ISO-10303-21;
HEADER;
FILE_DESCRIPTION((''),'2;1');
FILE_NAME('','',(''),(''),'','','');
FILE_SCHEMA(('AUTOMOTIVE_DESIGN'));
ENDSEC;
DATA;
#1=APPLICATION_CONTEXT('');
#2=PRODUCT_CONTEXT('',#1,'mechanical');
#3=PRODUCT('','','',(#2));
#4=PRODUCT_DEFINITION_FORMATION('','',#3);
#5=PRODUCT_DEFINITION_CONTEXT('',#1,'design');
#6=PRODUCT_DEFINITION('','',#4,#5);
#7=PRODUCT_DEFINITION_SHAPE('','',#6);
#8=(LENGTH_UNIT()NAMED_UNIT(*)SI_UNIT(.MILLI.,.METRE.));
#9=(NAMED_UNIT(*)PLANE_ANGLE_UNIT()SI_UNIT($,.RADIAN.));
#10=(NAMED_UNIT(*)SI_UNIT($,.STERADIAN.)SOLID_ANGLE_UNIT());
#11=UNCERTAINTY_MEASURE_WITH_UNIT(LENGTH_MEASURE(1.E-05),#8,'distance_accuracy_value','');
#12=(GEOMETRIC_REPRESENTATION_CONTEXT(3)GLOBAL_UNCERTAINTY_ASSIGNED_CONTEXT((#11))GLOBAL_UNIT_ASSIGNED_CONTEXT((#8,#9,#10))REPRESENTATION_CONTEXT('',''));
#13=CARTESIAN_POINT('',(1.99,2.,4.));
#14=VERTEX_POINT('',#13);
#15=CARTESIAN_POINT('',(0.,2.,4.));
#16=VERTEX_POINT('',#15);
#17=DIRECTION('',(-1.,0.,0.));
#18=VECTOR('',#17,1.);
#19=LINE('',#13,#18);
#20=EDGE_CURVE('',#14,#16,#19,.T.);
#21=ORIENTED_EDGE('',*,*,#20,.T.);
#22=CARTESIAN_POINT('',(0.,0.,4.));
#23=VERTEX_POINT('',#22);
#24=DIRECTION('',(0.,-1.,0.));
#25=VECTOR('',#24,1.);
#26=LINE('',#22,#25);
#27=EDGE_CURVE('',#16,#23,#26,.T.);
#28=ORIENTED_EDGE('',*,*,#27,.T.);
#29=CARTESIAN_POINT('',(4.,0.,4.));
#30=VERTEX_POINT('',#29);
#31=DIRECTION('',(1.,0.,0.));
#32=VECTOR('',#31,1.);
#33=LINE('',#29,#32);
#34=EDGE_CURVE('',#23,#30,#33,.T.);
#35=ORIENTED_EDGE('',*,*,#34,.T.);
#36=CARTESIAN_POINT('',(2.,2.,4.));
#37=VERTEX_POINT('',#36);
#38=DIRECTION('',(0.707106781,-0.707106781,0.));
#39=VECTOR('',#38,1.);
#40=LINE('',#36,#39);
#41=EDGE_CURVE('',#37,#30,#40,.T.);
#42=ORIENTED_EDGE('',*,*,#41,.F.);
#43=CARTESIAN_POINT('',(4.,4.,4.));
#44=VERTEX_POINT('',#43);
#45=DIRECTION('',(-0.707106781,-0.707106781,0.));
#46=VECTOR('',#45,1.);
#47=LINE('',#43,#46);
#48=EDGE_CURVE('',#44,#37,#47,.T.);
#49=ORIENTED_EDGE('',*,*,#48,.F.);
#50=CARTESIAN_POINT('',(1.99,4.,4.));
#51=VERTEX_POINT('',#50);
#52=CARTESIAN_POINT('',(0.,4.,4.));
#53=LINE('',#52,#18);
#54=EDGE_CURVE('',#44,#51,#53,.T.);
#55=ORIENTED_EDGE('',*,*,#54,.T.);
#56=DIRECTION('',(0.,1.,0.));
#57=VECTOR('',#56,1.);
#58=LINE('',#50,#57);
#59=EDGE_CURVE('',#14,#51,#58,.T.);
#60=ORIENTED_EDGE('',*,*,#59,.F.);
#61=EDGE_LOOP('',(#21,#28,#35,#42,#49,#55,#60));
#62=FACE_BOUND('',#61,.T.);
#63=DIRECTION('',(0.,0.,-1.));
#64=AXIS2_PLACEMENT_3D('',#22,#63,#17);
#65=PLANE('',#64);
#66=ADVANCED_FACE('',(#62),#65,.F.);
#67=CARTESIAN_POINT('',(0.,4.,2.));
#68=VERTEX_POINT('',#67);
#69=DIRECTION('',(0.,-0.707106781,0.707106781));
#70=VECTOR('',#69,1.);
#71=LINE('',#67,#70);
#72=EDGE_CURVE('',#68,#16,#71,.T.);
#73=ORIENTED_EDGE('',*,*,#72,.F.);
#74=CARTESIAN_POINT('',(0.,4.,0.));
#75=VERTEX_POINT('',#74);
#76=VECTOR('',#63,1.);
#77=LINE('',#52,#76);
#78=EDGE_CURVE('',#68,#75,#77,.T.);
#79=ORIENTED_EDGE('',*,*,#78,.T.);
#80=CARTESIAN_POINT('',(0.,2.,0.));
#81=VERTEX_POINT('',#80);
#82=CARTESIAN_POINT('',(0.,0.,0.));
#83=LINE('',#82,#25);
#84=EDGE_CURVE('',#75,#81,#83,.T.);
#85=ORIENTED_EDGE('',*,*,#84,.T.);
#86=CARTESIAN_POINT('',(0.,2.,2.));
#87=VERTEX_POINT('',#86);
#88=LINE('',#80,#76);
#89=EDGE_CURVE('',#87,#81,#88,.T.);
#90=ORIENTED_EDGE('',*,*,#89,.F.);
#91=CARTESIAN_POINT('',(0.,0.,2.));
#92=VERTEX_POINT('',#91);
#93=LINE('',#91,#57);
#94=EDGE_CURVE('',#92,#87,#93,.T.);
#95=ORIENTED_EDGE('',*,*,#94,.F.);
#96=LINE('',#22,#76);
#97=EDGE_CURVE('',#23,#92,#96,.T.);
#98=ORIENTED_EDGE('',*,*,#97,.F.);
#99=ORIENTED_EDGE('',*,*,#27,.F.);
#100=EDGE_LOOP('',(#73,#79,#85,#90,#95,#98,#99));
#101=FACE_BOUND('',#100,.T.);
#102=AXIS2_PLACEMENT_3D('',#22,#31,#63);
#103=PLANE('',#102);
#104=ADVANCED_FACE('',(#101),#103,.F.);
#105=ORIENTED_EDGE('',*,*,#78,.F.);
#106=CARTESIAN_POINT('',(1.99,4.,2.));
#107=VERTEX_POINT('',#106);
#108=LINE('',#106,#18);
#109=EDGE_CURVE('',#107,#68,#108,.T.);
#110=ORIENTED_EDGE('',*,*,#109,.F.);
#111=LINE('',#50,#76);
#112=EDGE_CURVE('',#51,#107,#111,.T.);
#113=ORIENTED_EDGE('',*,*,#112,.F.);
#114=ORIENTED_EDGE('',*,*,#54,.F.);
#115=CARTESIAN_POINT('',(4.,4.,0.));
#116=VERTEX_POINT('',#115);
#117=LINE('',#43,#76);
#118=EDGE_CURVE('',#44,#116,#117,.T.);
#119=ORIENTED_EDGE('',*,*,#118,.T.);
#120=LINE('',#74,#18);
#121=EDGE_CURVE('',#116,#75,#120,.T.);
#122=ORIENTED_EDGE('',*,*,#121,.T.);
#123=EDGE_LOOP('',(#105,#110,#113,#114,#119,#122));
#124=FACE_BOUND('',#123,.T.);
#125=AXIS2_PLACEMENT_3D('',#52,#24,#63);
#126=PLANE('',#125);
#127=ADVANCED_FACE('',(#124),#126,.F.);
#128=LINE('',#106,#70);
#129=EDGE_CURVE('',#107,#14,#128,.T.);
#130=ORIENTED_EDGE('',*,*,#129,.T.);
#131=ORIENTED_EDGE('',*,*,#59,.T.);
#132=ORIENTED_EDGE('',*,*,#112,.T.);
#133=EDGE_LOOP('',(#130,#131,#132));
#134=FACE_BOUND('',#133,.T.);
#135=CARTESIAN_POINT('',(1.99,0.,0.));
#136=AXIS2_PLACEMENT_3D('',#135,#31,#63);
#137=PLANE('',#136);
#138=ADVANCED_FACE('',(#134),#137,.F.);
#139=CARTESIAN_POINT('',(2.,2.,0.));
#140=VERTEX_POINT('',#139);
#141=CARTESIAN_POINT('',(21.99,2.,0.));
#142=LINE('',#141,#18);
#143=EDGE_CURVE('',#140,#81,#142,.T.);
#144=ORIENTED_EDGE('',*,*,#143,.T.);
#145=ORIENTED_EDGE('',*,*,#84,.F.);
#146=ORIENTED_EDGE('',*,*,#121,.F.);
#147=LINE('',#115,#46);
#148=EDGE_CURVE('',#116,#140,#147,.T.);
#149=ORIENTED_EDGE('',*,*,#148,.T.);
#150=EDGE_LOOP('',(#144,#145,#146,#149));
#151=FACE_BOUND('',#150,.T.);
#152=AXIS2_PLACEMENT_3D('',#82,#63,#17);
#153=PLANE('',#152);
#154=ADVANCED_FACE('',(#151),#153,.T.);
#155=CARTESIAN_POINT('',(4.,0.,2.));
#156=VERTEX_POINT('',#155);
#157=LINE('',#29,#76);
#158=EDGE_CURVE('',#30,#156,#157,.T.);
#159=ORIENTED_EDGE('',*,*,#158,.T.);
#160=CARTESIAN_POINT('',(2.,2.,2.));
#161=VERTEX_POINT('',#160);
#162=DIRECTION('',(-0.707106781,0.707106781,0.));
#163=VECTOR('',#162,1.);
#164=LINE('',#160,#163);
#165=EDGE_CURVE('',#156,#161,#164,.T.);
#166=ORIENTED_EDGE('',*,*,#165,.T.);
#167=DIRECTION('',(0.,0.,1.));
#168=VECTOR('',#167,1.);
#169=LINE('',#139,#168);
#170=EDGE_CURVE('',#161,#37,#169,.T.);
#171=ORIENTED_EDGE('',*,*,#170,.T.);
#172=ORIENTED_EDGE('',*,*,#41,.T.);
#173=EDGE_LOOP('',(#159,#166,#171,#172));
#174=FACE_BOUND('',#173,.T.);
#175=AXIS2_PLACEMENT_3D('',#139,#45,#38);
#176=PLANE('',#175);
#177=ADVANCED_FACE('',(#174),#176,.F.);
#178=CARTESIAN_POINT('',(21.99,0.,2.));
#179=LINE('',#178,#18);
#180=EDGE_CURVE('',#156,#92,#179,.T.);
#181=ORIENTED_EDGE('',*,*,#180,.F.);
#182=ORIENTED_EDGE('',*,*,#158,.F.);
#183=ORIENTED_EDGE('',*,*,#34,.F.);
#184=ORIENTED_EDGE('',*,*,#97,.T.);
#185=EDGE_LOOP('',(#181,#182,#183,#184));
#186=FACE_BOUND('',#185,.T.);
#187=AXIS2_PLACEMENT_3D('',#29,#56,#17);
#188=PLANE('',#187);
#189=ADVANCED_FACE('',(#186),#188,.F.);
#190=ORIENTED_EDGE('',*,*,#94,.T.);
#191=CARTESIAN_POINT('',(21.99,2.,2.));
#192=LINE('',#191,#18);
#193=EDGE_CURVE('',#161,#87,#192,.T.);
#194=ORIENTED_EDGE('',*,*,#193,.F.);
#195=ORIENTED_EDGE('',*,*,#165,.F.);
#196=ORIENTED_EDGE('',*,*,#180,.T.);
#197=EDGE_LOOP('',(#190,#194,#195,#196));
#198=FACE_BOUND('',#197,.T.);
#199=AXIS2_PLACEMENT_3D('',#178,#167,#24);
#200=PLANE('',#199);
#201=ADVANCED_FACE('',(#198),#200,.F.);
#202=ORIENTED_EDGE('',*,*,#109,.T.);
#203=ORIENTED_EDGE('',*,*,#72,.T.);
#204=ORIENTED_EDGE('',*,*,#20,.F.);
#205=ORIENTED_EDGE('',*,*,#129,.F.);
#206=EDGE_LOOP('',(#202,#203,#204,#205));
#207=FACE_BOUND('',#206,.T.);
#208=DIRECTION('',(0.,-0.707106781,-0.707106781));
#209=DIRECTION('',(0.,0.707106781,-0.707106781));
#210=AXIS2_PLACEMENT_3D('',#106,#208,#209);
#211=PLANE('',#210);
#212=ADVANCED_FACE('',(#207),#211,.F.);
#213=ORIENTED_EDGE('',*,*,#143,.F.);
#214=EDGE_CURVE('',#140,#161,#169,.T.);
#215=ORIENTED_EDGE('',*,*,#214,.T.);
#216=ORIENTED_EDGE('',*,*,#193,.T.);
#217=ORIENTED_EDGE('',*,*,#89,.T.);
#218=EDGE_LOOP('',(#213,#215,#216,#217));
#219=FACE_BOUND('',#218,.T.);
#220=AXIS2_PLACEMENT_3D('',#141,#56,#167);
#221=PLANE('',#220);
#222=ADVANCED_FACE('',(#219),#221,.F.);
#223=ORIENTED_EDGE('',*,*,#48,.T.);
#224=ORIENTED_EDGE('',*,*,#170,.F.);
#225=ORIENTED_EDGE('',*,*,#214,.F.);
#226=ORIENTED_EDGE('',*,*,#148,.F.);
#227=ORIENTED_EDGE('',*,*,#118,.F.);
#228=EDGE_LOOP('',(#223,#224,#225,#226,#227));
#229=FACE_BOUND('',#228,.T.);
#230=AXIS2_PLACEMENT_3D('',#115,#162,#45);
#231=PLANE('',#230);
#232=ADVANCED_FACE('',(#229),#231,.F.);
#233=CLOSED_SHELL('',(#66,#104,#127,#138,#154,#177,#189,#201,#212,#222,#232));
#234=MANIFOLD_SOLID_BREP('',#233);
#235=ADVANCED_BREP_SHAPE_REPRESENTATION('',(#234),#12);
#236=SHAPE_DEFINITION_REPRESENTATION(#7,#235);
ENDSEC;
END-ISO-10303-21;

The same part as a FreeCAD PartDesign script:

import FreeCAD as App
import Part
import Sketcher

doc = App.newDocument("Part")
params = doc.addObject("Spreadsheet::Sheet", "Params")
for row, (alias, value) in enumerate([
    ("sketch1_width", "4 mm"),
    ("pad1_length", "4 mm"),
    ("sketch2_height", "4 mm"),
    ("pocket1_length", "4 mm"),
    ("sketch3_width", "2 mm"),
    ("pocket2_length", "1.99 mm"),
    ("sketch4_width", "2 mm"),
    ("pocket3_length", "21.99 mm"),
], start=1):
    params.set(f"A{row}", alias)
    params.set(f"B{row}", "=" + value)
    params.setAlias(f"B{row}", alias)

body = doc.addObject("PartDesign::Body", "Body")

sketch1 = body.newObject("Sketcher::SketchObject", "Sketch")
sketch1.AttachmentSupport = (doc.getObject("XY_Plane"), [""])
sketch1.MapMode = "FlatFace"
sketch1.addGeometry(Part.LineSegment(App.Vector(0, 4, 0), App.Vector(0, 0, 0)), False)
sketch1.addGeometry(Part.LineSegment(App.Vector(0, 0, 0), App.Vector(4, 0, 0)), False)
sketch1.addGeometry(Part.LineSegment(App.Vector(4, 0, 0), App.Vector(4, 4, 0)), False)
sketch1.addGeometry(Part.LineSegment(App.Vector(4, 4, 0), App.Vector(0, 4, 0)), False)
sketch1.addConstraint(Sketcher.Constraint("Coincident", 0, 2, 1, 1))
sketch1.addConstraint(Sketcher.Constraint("Coincident", 1, 2, 2, 1))
sketch1.addConstraint(Sketcher.Constraint("Coincident", 2, 2, 3, 1))
sketch1.addConstraint(Sketcher.Constraint("Coincident", 3, 2, 0, 1))
sketch1.addConstraint(Sketcher.Constraint("Vertical", 0))
sketch1.addConstraint(Sketcher.Constraint("Horizontal", 1))
sketch1.addConstraint(Sketcher.Constraint("Vertical", 2))
sketch1.addConstraint(Sketcher.Constraint("Horizontal", 3))
sketch1.addConstraint(Sketcher.Constraint("Coincident", 0, 2, -1, 1))
sketch1.addConstraint(Sketcher.Constraint("Equal", 3, 0))
sketch1.addConstraint(Sketcher.Constraint("DistanceX", 1, 1, 1, 2, 4.0))
sketch1.setExpression("Constraints[10]", "Params.sketch1_width")
pad1 = body.newObject("PartDesign::Pad", "Pad")
pad1.Profile = sketch1
pad1.setExpression("Length", "Params.pad1_length")

sketch2 = body.newObject("Sketcher::SketchObject", "Sketch001")
sketch2.AttachmentSupport = (doc.getObject("XY_Plane"), [""])
sketch2.MapMode = "FlatFace"
sketch2.AttachmentOffset = App.Placement(App.Vector(0, 0, 4), App.Rotation())
sketch2.addGeometry(Part.LineSegment(App.Vector(4, 4, 0), App.Vector(2, 2, 0)), False)
sketch2.addGeometry(Part.LineSegment(App.Vector(2, 2, 0), App.Vector(4, 0, 0)), False)
sketch2.addGeometry(Part.LineSegment(App.Vector(4, 0, 0), App.Vector(4, 4, 0)), False)
sketch2.addConstraint(Sketcher.Constraint("Coincident", 0, 2, 1, 1))
sketch2.addConstraint(Sketcher.Constraint("Coincident", 1, 2, 2, 1))
sketch2.addConstraint(Sketcher.Constraint("Coincident", 2, 2, 0, 1))
sketch2.addConstraint(Sketcher.Constraint("Vertical", 2))
sketch2.addConstraint(Sketcher.Constraint("PointOnObject", 1, 2, -1))
sketch2.addConstraint(Sketcher.Constraint("Perpendicular", 0, 1))
sketch2.addConstraint(Sketcher.Constraint("Equal", 0, 1))
sketch2.addConstraint(Sketcher.Constraint("DistanceY", 2, 1, 2, 2, 4.0))
sketch2.addConstraint(Sketcher.Constraint("DistanceX", -1, 1, 0, 2, 2.0))
sketch2.setExpression("Constraints[7]", "Params.sketch2_height")
pocket1 = body.newObject("PartDesign::Pocket", "Pocket")
pocket1.Profile = sketch2
pocket1.setExpression("Length", "Params.pocket1_length")

sketch3 = body.newObject("Sketcher::SketchObject", "Sketch002")
sketch3.AttachmentSupport = (doc.getObject("YZ_Plane"), [""])
sketch3.MapMode = "FlatFace"
sketch3.addGeometry(Part.LineSegment(App.Vector(4, 2, 0), App.Vector(2, 4, 0)), False)
sketch3.addGeometry(Part.LineSegment(App.Vector(2, 4, 0), App.Vector(4, 4, 0)), False)
sketch3.addGeometry(Part.LineSegment(App.Vector(4, 4, 0), App.Vector(4, 2, 0)), False)
sketch3.addConstraint(Sketcher.Constraint("Coincident", 0, 2, 1, 1))
sketch3.addConstraint(Sketcher.Constraint("Coincident", 1, 2, 2, 1))
sketch3.addConstraint(Sketcher.Constraint("Coincident", 2, 2, 0, 1))
sketch3.addConstraint(Sketcher.Constraint("Horizontal", 1))
sketch3.addConstraint(Sketcher.Constraint("Vertical", 2))
sketch3.addConstraint(Sketcher.Constraint("Equal", 1, 2))
sketch3.addConstraint(Sketcher.Constraint("DistanceX", 1, 1, 1, 2, 2.0))
sketch3.addConstraint(Sketcher.Constraint("DistanceX", -1, 1, 0, 2, 2.0))
sketch3.addConstraint(Sketcher.Constraint("DistanceY", -1, 1, 0, 2, 4.0))
sketch3.setExpression("Constraints[6]", "Params.sketch3_width")
pocket2 = body.newObject("PartDesign::Pocket", "Pocket001")
pocket2.Profile = sketch3
pocket2.setExpression("Length", "Params.pocket2_length")
pocket2.Reversed = True

sketch4 = body.newObject("Sketcher::SketchObject", "Sketch003")
sketch4.AttachmentSupport = (doc.getObject("YZ_Plane"), [""])
sketch4.MapMode = "FlatFace"
sketch4.addGeometry(Part.LineSegment(App.Vector(2, 0, 0), App.Vector(0, 0, 0)), False)
sketch4.addGeometry(Part.LineSegment(App.Vector(0, 0, 0), App.Vector(0, 2, 0)), False)
sketch4.addGeometry(Part.LineSegment(App.Vector(0, 2, 0), App.Vector(2, 2, 0)), False)
sketch4.addGeometry(Part.LineSegment(App.Vector(2, 2, 0), App.Vector(2, 0, 0)), False)
sketch4.addConstraint(Sketcher.Constraint("Coincident", 0, 2, 1, 1))
sketch4.addConstraint(Sketcher.Constraint("Coincident", 1, 2, 2, 1))
sketch4.addConstraint(Sketcher.Constraint("Coincident", 2, 2, 3, 1))
sketch4.addConstraint(Sketcher.Constraint("Coincident", 3, 2, 0, 1))
sketch4.addConstraint(Sketcher.Constraint("Horizontal", 0))
sketch4.addConstraint(Sketcher.Constraint("Vertical", 1))
sketch4.addConstraint(Sketcher.Constraint("Horizontal", 2))
sketch4.addConstraint(Sketcher.Constraint("Vertical", 3))
sketch4.addConstraint(Sketcher.Constraint("Coincident", 0, 2, -1, 1))
sketch4.addConstraint(Sketcher.Constraint("Equal", 2, 1))
sketch4.addConstraint(Sketcher.Constraint("DistanceX", 0, 2, 0, 1, 2.0))
sketch4.setExpression("Constraints[10]", "Params.sketch4_width")
pocket3 = body.newObject("PartDesign::Pocket", "Pocket002")
pocket3.Profile = sketch4
pocket3.setExpression("Length", "Params.pocket3_length")
pocket3.Reversed = True

doc.recompute()
